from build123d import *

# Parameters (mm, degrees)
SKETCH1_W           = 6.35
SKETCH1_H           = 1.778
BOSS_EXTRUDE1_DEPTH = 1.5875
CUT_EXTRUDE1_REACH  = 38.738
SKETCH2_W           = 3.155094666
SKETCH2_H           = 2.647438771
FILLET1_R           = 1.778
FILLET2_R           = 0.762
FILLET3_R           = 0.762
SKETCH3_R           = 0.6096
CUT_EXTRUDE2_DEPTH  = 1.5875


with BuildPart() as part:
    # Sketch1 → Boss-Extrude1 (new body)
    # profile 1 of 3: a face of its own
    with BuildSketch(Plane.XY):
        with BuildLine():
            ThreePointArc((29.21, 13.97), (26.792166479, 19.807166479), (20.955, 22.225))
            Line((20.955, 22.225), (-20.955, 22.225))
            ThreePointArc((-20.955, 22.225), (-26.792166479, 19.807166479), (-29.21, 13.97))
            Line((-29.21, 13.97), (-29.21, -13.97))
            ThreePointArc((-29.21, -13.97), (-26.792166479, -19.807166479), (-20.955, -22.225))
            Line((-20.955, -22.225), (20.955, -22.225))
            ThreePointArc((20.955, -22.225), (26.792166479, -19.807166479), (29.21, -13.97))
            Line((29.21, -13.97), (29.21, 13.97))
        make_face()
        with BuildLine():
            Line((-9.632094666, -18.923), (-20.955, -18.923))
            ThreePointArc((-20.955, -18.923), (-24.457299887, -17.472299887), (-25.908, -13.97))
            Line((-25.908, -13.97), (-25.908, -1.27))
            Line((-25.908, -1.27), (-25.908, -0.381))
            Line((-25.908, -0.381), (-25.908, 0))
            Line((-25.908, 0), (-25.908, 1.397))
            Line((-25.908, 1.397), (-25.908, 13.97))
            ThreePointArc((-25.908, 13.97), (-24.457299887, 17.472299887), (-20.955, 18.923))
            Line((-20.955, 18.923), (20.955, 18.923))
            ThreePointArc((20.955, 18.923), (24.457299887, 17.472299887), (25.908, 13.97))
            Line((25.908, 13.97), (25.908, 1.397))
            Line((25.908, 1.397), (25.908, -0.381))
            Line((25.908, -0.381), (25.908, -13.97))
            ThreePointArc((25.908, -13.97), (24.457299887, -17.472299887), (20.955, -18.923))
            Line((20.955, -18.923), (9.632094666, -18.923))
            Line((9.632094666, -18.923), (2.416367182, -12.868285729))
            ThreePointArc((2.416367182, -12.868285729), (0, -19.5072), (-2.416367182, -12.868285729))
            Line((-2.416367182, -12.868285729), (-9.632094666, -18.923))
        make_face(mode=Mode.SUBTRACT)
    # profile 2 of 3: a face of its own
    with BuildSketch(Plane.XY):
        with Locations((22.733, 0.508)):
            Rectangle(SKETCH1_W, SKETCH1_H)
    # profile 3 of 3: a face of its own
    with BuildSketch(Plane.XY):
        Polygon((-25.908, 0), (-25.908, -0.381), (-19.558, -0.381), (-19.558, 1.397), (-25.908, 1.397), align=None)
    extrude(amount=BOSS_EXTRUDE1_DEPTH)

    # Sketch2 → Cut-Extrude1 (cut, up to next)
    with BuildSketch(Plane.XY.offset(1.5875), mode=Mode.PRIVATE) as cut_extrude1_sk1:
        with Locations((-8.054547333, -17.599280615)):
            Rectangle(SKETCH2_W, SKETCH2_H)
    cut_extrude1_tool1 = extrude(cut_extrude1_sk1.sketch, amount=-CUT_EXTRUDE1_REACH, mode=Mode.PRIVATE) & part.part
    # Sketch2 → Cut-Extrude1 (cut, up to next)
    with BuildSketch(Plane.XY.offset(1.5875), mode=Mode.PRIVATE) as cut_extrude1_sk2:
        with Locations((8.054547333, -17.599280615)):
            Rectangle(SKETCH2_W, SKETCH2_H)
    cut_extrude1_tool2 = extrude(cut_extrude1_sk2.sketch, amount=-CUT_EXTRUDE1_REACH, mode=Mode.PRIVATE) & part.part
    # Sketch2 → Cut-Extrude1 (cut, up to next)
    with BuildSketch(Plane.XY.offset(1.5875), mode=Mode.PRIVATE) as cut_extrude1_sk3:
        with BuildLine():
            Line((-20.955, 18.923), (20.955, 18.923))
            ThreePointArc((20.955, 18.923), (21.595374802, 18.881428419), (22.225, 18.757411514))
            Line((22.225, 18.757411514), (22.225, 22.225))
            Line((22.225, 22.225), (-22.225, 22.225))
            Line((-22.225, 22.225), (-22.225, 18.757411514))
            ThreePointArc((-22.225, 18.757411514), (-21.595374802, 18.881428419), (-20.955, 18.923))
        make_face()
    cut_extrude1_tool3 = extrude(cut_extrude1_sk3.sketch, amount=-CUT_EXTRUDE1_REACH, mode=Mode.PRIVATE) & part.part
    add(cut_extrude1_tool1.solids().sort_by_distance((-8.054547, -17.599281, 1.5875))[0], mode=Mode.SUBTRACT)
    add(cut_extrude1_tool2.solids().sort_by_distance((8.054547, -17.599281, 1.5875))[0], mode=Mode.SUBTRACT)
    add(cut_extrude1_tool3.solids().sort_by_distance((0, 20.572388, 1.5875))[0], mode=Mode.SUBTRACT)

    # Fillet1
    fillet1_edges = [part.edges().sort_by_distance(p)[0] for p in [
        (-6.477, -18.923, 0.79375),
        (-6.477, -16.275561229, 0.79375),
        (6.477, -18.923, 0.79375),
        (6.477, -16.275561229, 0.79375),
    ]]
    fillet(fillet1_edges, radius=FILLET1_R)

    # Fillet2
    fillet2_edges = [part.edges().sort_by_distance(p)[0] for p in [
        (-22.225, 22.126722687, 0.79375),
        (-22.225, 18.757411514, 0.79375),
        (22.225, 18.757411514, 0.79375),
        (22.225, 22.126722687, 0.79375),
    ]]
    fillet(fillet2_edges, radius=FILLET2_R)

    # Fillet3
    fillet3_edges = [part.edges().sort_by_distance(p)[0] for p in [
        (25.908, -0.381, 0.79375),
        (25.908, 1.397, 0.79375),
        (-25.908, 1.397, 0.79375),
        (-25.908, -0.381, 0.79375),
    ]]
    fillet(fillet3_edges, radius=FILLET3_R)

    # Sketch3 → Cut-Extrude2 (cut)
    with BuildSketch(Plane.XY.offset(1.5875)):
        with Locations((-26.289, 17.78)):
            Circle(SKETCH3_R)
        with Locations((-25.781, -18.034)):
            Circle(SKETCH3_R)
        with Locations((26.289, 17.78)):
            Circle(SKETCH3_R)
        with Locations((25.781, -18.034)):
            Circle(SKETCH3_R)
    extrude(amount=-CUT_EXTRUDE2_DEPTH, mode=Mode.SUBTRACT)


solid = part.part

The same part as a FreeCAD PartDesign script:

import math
import FreeCAD as App
import Part
import Sketcher
Q = App.Units.Quantity


def edges_at(feature, points):
    """Names of the edges that pass closest to the given points."""
    edges = feature.Shape.Edges
    near = lambda p: min(range(len(edges)), key=lambda i: edges[i].distToShape(Part.Vertex(*p))[0])
    return sorted({f"Edge{near(p) + 1}" for p in points})

doc = App.newDocument("Part")
body = doc.addObject("PartDesign::Body", "Body")

# Sketch on XY plane
sketch1 = body.newObject("Sketcher::SketchObject", "Sketch")
sketch1.AttachmentSupport = (doc.getObject("XY_Plane"), [""])
sketch1.MapMode = "FlatFace"
sketch1.addGeometry(Part.ArcOfCircle(Part.Circle(App.Vector(20.955, 13.97, 0), App.Vector(0, 0, 1), 8.255), math.radians(0), math.radians(90)), False)
sketch1.addGeometry(Part.LineSegment(App.Vector(20.955, 22.225, 0), App.Vector(-20.955, 22.225, 0)), False)
sketch1.addGeometry(Part.ArcOfCircle(Part.Circle(App.Vector(-20.955, 13.97, 0), App.Vector(0, 0, 1), 8.255), math.radians(90), math.radians(180)), False)
sketch1.addGeometry(Part.LineSegment(App.Vector(-29.21, 13.97, 0), App.Vector(-29.21, -13.97, 0)), False)
sketch1.addGeometry(Part.ArcOfCircle(Part.Circle(App.Vector(-20.955, -13.97, 0), App.Vector(0, 0, 1), 8.255), math.radians(180), math.radians(270)), False)
sketch1.addGeometry(Part.LineSegment(App.Vector(-20.955, -22.225, 0), App.Vector(20.955, -22.225, 0)), False)
sketch1.addGeometry(Part.ArcOfCircle(Part.Circle(App.Vector(20.955, -13.97, 0), App.Vector(0, 0, 1), 8.255), math.radians(-90), math.radians(0)), False)
sketch1.addGeometry(Part.LineSegment(App.Vector(29.21, -13.97, 0), App.Vector(29.21, 13.97, 0)), False)
sketch1.addGeometry(Part.LineSegment(App.Vector(-2.416367, -12.868286, 0), App.Vector(-9.632095, -18.923, 0)), False)
sketch1.addGeometry(Part.LineSegment(App.Vector(-9.632095, -18.923, 0), App.Vector(-20.955, -18.923, 0)), False)
sketch1.addGeometry(Part.ArcOfCircle(Part.Circle(App.Vector(-20.955, -13.97, 0), App.Vector(0, 0, 1), 4.953), math.radians(-180), math.radians(-90)), False)
sketch1.addGeometry(Part.LineSegment(App.Vector(-25.908, -13.97, 0), App.Vector(-25.908, -0.381, 0)), False)
sketch1.addGeometry(Part.LineSegment(App.Vector(-25.908, -0.381, 0), App.Vector(-19.558, -0.381, 0)), False)
sketch1.addGeometry(Part.LineSegment(App.Vector(-19.558, -0.381, 0), App.Vector(-19.558, 1.397, 0)), False)
sketch1.addGeometry(Part.LineSegment(App.Vector(-19.558, 1.397, 0), App.Vector(-25.908, 1.397, 0)), False)
sketch1.addGeometry(Part.LineSegment(App.Vector(-25.908, 1.397, 0), App.Vector(-25.908, 13.97, 0)), False)
sketch1.addGeometry(Part.ArcOfCircle(Part.Circle(App.Vector(-20.955, 13.97, 0), App.Vector(0, 0, 1), 4.953), math.radians(90), math.radians(180)), False)
sketch1.addGeometry(Part.LineSegment(App.Vector(-20.955, 18.923, 0), App.Vector(20.955, 18.923, 0)), False)
sketch1.addGeometry(Part.ArcOfCircle(Part.Circle(App.Vector(20.955, 13.97, 0), App.Vector(0, 0, 1), 4.953), math.radians(0), math.radians(90)), False)
sketch1.addGeometry(Part.LineSegment(App.Vector(25.908, 13.97, 0), App.Vector(25.908, 1.397, 0)), False)
sketch1.addGeometry(Part.LineSegment(App.Vector(25.908, 1.397, 0), App.Vector(19.558, 1.397, 0)), False)
sketch1.addGeometry(Part.LineSegment(App.Vector(19.558, 1.397, 0), App.Vector(19.558, -0.381, 0)), False)
sketch1.addGeometry(Part.LineSegment(App.Vector(19.558, -0.381, 0), App.Vector(25.908, -0.381, 0)), False)
sketch1.addGeometry(Part.LineSegment(App.Vector(25.908, -0.381, 0), App.Vector(25.908, -13.97, 0)), False)
sketch1.addGeometry(Part.ArcOfCircle(Part.Circle(App.Vector(20.955, -13.97, 0), App.Vector(0, 0, 1), 4.953), math.radians(-90), math.radians(0)), False)
sketch1.addGeometry(Part.LineSegment(App.Vector(20.955, -18.923, 0), App.Vector(9.632095, -18.923, 0)), False)
sketch1.addGeometry(Part.LineSegment(App.Vector(9.632095, -18.923, 0), App.Vector(2.416367, -12.868286, 0)), False)
sketch1.addGeometry(Part.ArcOfCircle(Part.Circle(App.Vector(0, -15.748, 0), App.Vector(0, 0, 1), 3.7592), math.radians(130), math.radians(410)), False)
sketch1.addConstraint(Sketcher.Constraint("Tangent", 0, 2, 1, 1))
sketch1.addConstraint(Sketcher.Constraint("Tangent", 1, 2, 2, 1))
sketch1.addConstraint(Sketcher.Constraint("Tangent", 2, 2, 3, 1))
sketch1.addConstraint(Sketcher.Constraint("Tangent", 3, 2, 4, 1))
sketch1.addConstraint(Sketcher.Constraint("Tangent", 4, 2, 5, 1))
sketch1.addConstraint(Sketcher.Constraint("Tangent", 5, 2, 6, 1))
sketch1.addConstraint(Sketcher.Constraint("Tangent", 6, 2, 7, 1))
sketch1.addConstraint(Sketcher.Constraint("Tangent", 7, 2, 0, 1))
sketch1.addConstraint(Sketcher.Constraint("Coincident", 8, 2, 9, 1))
sketch1.addConstraint(Sketcher.Constraint("Tangent", 9, 2, 10, 2))
sketch1.addConstraint(Sketcher.Constraint("Tangent", 10, 1, 11, 1))
sketch1.addConstraint(Sketcher.Constraint("Coincident", 11, 2, 12, 1))
sketch1.addConstraint(Sketcher.Constraint("Coincident", 12, 2, 13, 1))
sketch1.addConstraint(Sketcher.Constraint("Coincident", 13, 2, 14, 1))
sketch1.addConstraint(Sketcher.Constraint("Coincident", 14, 2, 15, 1))
sketch1.addConstraint(Sketcher.Constraint("Tangent", 15, 2, 16, 2))
sketch1.addConstraint(Sketcher.Constraint("Tangent", 16, 1, 17, 1))
sketch1.addConstraint(Sketcher.Constraint("Tangent", 17, 2, 18, 2))
sketch1.addConstraint(Sketcher.Constraint("Tangent", 18, 1, 19, 1))
sketch1.addConstraint(Sketcher.Constraint("Coincident", 19, 2, 20, 1))
sketch1.addConstraint(Sketcher.Constraint("Coincident", 20, 2, 21, 1))
sketch1.addConstraint(Sketcher.Constraint("Coincident", 21, 2, 22, 1))
sketch1.addConstraint(Sketcher.Constraint("Coincident", 22, 2, 23, 1))
sketch1.addConstraint(Sketcher.Constraint("Tangent", 23, 2, 24, 2))
sketch1.addConstraint(Sketcher.Constraint("Tangent", 24, 1, 25, 1))
sketch1.addConstraint(Sketcher.Constraint("Coincident", 25, 2, 26, 1))
sketch1.addConstraint(Sketcher.Constraint("Tangent", 26, 2, 27, 2))
sketch1.addConstraint(Sketcher.Constraint("Tangent", 27, 1, 8, 1))
sketch1.addConstraint(Sketcher.Constraint("Horizontal", 1))
sketch1.addConstraint(Sketcher.Constraint("Vertical", 3))
sketch1.addConstraint(Sketcher.Constraint("Horizontal", 5))
sketch1.addConstraint(Sketcher.Constraint("Vertical", 7))
sketch1.addConstraint(Sketcher.Constraint("Horizontal", 9))
sketch1.addConstraint(Sketcher.Constraint("Vertical", 11))
sketch1.addConstraint(Sketcher.Constraint("Horizontal", 12))
sketch1.addConstraint(Sketcher.Constraint("Vertical", 13))
sketch1.addConstraint(Sketcher.Constraint("Horizontal", 14))
sketch1.addConstraint(Sketcher.Constraint("Vertical", 15))
sketch1.addConstraint(Sketcher.Constraint("Horizontal", 17))
sketch1.addConstraint(Sketcher.Constraint("Vertical", 19))
sketch1.addConstraint(Sketcher.Constraint("Horizontal", 20))
sketch1.addConstraint(Sketcher.Constraint("Vertical", 21))
sketch1.addConstraint(Sketcher.Constraint("Horizontal", 22))
sketch1.addConstraint(Sketcher.Constraint("Vertical", 23))
sketch1.addConstraint(Sketcher.Constraint("Horizontal", 25))
sketch1.addConstraint(Sketcher.Constraint("Coincident", 10, 3, 4, 3))
sketch1.addConstraint(Sketcher.Constraint("Coincident", 16, 3, 2, 3))
sketch1.addConstraint(Sketcher.Constraint("Coincident", 18, 3, 0, 3))
sketch1.addConstraint(Sketcher.Constraint("Coincident", 24, 3, 6, 3))
sketch1.addConstraint(Sketcher.Constraint("Equal", 0, 2))
sketch1.addConstraint(Sketcher.Constraint("Equal", 2, 4))
sketch1.addConstraint(Sketcher.Constraint("Equal", 4, 6))
sketch1.addConstraint(Sketcher.Constraint("Equal", 10, 16))
sketch1.addConstraint(Sketcher.Constraint("Equal", 18, 24))
sketch1.addConstraint(Sketcher.Constraint("Symmetric", 0, 3, 4, 3, -1, 1))
sketch1.addConstraint(Sketcher.Constraint("Symmetric", 13, 2, 20, 2, -2))
sketch1.addConstraint(Sketcher.Constraint("Symmetric", 26, 2, 27, 1, -2))
sketch1.addConstraint(Sketcher.Constraint("Horizontal", 12, 2, 21, 2))
sketch1.addConstraint(Sketcher.Constraint("DistanceY", 3, 2, 3, 1, Q("1.1 in")))
sketch1.addConstraint(Sketcher.Constraint("Angle", 8, Q("-140 deg")))
sketch1.addConstraint(Sketcher.Constraint("Radius", 0, Q("0.325 in")))
sketch1.addConstraint(Sketcher.Constraint("Radius", 10, Q("0.195 in")))
sketch1.addConstraint(Sketcher.Constraint("Radius", 27, Q("0.148 in")))
sketch1.addConstraint(Sketcher.Constraint("DistanceX", 1, 2, 1, 1, Q("1.65 in")))
sketch1.addConstraint(Sketcher.Constraint("DistanceX", 12, 1, 12, 2, Q("0.25 in")))
sketch1.addConstraint(Sketcher.Constraint("DistanceY", 13, 1, 13, 2, Q("0.07 in")))
sketch1.addConstraint(Sketcher.Constraint("DistanceY", 11, 1, 11, 2, Q("0.535 in")))
sketch1.addConstraint(Sketcher.Constraint("DistanceY", 27, 3, -1, 1, Q("0.62 in")))
pad1 = body.newObject("PartDesign::Pad", "Pad")
pad1.Profile = sketch1
pad1.Length = Q("0.0625 in")

# Sketch on XY plane
sketch2 = body.newObject("Sketcher::SketchObject", "Sketch001")
sketch2.AttachmentSupport = (doc.getObject("XY_Plane"), [""])
sketch2.MapMode = "FlatFace"
sketch2.AttachmentOffset = App.Placement(App.Vector(0, 0, 0.0625 * 25.4), App.Rotation())
sketch2.addGeometry(Part.LineSegment(App.Vector(-9.632095, -16.275561, 0), App.Vector(-9.632095, -18.923, 0)), False)
sketch2.addGeometry(Part.LineSegment(App.Vector(-9.632095, -18.923, 0), App.Vector(-6.477, -18.923, 0)), False)
sketch2.addGeometry(Part.LineSegment(App.Vector(-6.477, -18.923, 0), App.Vector(-6.477, -16.275561, 0)), False)
sketch2.addGeometry(Part.LineSegment(App.Vector(-6.477, -16.275561, 0), App.Vector(-9.632095, -16.275561, 0)), False)
sketch2.addConstraint(Sketcher.Constraint("Coincident", 0, 2, 1, 1))
sketch2.addConstraint(Sketcher.Constraint("Coincident", 1, 2, 2, 1))
sketch2.addConstraint(Sketcher.Constraint("Coincident", 2, 2, 3, 1))
sketch2.addConstraint(Sketcher.Constraint("Coincident", 3, 2, 0, 1))
sketch2.addConstraint(Sketcher.Constraint("Vertical", 0))
sketch2.addConstraint(Sketcher.Constraint("Horizontal", 1))
sketch2.addConstraint(Sketcher.Constraint("Vertical", 2))
sketch2.addConstraint(Sketcher.Constraint("Horizontal", 3))
sketch2.addConstraint(Sketcher.Constraint("DistanceY", 0, 2, -1, 1, Q("0.745 in")))
sketch2.addConstraint(Sketcher.Constraint("DistanceX", 1, 2, -1, 1, Q("0.255 in")))
sketch2.addConstraint(Sketcher.Constraint("DistanceY", 0, 2, 0, 1, 2.647439))
sketch2.addConstraint(Sketcher.Constraint("DistanceX", 1, 1, 1, 2, 3.155095))
pocket1 = body.newObject("PartDesign::Pocket", "Pocket")
pocket1.Profile = sketch2
pocket1.Length = Q("0.0625 in")

# Sketch on XY plane
sketch3 = body.newObject("Sketcher::SketchObject", "Sketch002")
sketch3.AttachmentSupport = (doc.getObject("XY_Plane"), [""])
sketch3.MapMode = "FlatFace"
sketch3.AttachmentOffset = App.Placement(App.Vector(0, 0, 0.0625 * 25.4), App.Rotation())
sketch3.addGeometry(Part.LineSegment(App.Vector(6.477, -16.275561, 0), App.Vector(6.477, -18.923, 0)), False)
sketch3.addGeometry(Part.LineSegment(App.Vector(6.477, -18.923, 0), App.Vector(9.632095, -18.923, 0)), False)
sketch3.addGeometry(Part.LineSegment(App.Vector(9.632095, -18.923, 0), App.Vector(9.632095, -16.275561, 0)), False)
sketch3.addGeometry(Part.LineSegment(App.Vector(9.632095, -16.275561, 0), App.Vector(6.477, -16.275561, 0)), False)
sketch3.addConstraint(Sketcher.Constraint("Coincident", 0, 2, 1, 1))
sketch3.addConstraint(Sketcher.Constraint("Coincident", 1, 2, 2, 1))
sketch3.addConstraint(Sketcher.Constraint("Coincident", 2, 2, 3, 1))
sketch3.addConstraint(Sketcher.Constraint("Coincident", 3, 2, 0, 1))
sketch3.addConstraint(Sketcher.Constraint("Vertical", 0))
sketch3.addConstraint(Sketcher.Constraint("Horizontal", 1))
sketch3.addConstraint(Sketcher.Constraint("Vertical", 2))
sketch3.addConstraint(Sketcher.Constraint("Horizontal", 3))
sketch3.addConstraint(Sketcher.Constraint("DistanceX", -1, 1, 0, 2, Q("0.255 in")))
sketch3.addConstraint(Sketcher.Constraint("DistanceY", 0, 2, -1, 1, Q("0.745 in")))
sketch3.addConstraint(Sketcher.Constraint("DistanceY", 0, 2, 0, 1, 2.647439))
sketch3.addConstraint(Sketcher.Constraint("DistanceX", 1, 1, 1, 2, 3.155095))
pocket2 = body.newObject("PartDesign::Pocket", "Pocket001")
pocket2.Profile = sketch3
pocket2.Length = Q("0.0625 in")

# Sketch on XY plane
sketch4 = body.newObject("Sketcher::SketchObject", "Sketch003")
sketch4.AttachmentSupport = (doc.getObject("XY_Plane"), [""])
sketch4.MapMode = "FlatFace"
sketch4.AttachmentOffset = App.Placement(App.Vector(0, 0, 0.0625 * 25.4), App.Rotation())
sketch4.addGeometry(Part.LineSegment(App.Vector(-20.955, 18.923, 0), App.Vector(20.955, 18.923, 0)), False)
sketch4.addGeometry(Part.ArcOfCircle(Part.Circle(App.Vector(20.955, 13.97, 0), App.Vector(0, 0, 1), 4.953), math.radians(75.142834), math.radians(90)), False)
sketch4.addGeometry(Part.LineSegment(App.Vector(22.225, 18.757412, 0), App.Vector(22.225, 22.225, 0)), False)
sketch4.addGeometry(Part.LineSegment(App.Vector(22.225, 22.225, 0), App.Vector(-22.225, 22.225, 0)), False)
sketch4.addGeometry(Part.LineSegment(App.Vector(-22.225, 22.225, 0), App.Vector(-22.225, 18.757412, 0)), False)
sketch4.addGeometry(Part.ArcOfCircle(Part.Circle(App.Vector(-20.955, 13.97, 0), App.Vector(0, 0, 1), 4.953), math.radians(90), math.radians(104.857166)), False)
sketch4.addConstraint(Sketcher.Constraint("Tangent", 0, 2, 1, 2))
sketch4.addConstraint(Sketcher.Constraint("Coincident", 1, 1, 2, 1))
sketch4.addConstraint(Sketcher.Constraint("Coincident", 2, 2, 3, 1))
sketch4.addConstraint(Sketcher.Constraint("Coincident", 3, 2, 4, 1))
sketch4.addConstraint(Sketcher.Constraint("Coincident", 4, 2, 5, 2))
sketch4.addConstraint(Sketcher.Constraint("Tangent", 5, 1, 0, 1))
sketch4.addConstraint(Sketcher.Constraint("Horizontal", 0))
sketch4.addConstraint(Sketcher.Constraint("Vertical", 2))
sketch4.addConstraint(Sketcher.Constraint("Horizontal", 3))
sketch4.addConstraint(Sketcher.Constraint("Vertical", 4))
sketch4.addConstraint(Sketcher.Constraint("Equal", 1, 5))
sketch4.addConstraint(Sketcher.Constraint("Symmetric", 1, 1, 4, 2, -2))
sketch4.addConstraint(Sketcher.Constraint("Radius", 1, Q("0.195 in")))
sketch4.addConstraint(Sketcher.Constraint("DistanceX", 0, 1, 0, 2, Q("1.65 in")))
sketch4.addConstraint(Sketcher.Constraint("DistanceX", 3, 2, 3, 1, Q("1.75 in")))
sketch4.addConstraint(Sketcher.Constraint("DistanceY", -1, 1, 1, 3, Q("0.55 in")))
sketch4.addConstraint(Sketcher.Constraint("DistanceY", 0, 2, 2, 2, Q("0.13 in")))
pocket3 = body.newObject("PartDesign::Pocket", "Pocket002")
pocket3.Profile = sketch4
pocket3.Type = "UpToFirst"
doc.recompute()

fillet = body.newObject("PartDesign::Fillet", "Fillet")
fillet.Base = (pocket3, edges_at(pocket3, [
    (-6.477, -18.923, 0.794),
    (-6.477, -16.276, 0.794),
    (6.477, -18.923, 0.794),
    (6.477, -16.276, 0.794),
]))
fillet.Radius = Q("0.07 in")
doc.recompute()

fillet2 = body.newObject("PartDesign::Fillet", "Fillet001")
fillet2.Base = (fillet, edges_at(fillet, [
    (-22.225, 22.127, 0.794),
    (-22.225, 18.757, 0.794),
    (22.225, 18.757, 0.794),
    (22.225, 22.127, 0.794),
]))
fillet2.Radius = Q("0.03 in")
doc.recompute()

fillet3 = body.newObject("PartDesign::Fillet", "Fillet002")
fillet3.Base = (fillet2, edges_at(fillet2, [
    (25.908, -0.381, 0.794),
    (25.908, 1.397, 0.794),
    (-25.908, 1.397, 0.794),
    (-25.908, -0.381, 0.794),
]))
fillet3.Radius = Q("0.03 in")

# Sketch on XY plane
sketch5 = body.newObject("Sketcher::SketchObject", "Sketch004")
sketch5.AttachmentSupport = (doc.getObject("XY_Plane"), [""])
sketch5.MapMode = "FlatFace"
sketch5.AttachmentOffset = App.Placement(App.Vector(0, 0, 0.0625 * 25.4), App.Rotation())
sketch5.addGeometry(Part.Circle(App.Vector(-26.289, 17.78, 0), App.Vector(0, 0, 1), 0.6096), False)
sketch5.addGeometry(Part.Circle(App.Vector(-25.781, -18.034, 0), App.Vector(0, 0, 1), 0.6096), False)
sketch5.addGeometry(Part.Circle(App.Vector(26.289, 17.78, 0), App.Vector(0, 0, 1), 0.6096), False)
sketch5.addGeometry(Part.Circle(App.Vector(25.781, -18.034, 0), App.Vector(0, 0, 1), 0.6096), False)
sketch5.addConstraint(Sketcher.Constraint("Equal", 0, 1))
sketch5.addConstraint(Sketcher.Constraint("Equal", 1, 2))
sketch5.addConstraint(Sketcher.Constraint("Equal", 2, 3))
sketch5.addConstraint(Sketcher.Constraint("Symmetric", 0, 3, 2, 3, -2))
sketch5.addConstraint(Sketcher.Constraint("Symmetric", 1, 3, 3, 3, -2))
sketch5.addConstraint(Sketcher.Constraint("Diameter", 0, Q("0.048 in")))
sketch5.addConstraint(Sketcher.Constraint("DistanceY", -1, 1, 0, 3, Q("0.7 in")))
sketch5.addConstraint(Sketcher.Constraint("DistanceY", 1, 3, -1, 1, Q("0.71 in")))
sketch5.addConstraint(Sketcher.Constraint("DistanceX", 0, 3, 1, 3, Q("0.02 in")))
sketch5.addConstraint(Sketcher.Constraint("DistanceX", 0, 3, 2, 3, Q("2.07 in")))
pocket4 = body.newObject("PartDesign::Pocket", "Pocket003")
pocket4.Profile = sketch5
pocket4.Length = Q("0.0625 in")

doc.recompute()
